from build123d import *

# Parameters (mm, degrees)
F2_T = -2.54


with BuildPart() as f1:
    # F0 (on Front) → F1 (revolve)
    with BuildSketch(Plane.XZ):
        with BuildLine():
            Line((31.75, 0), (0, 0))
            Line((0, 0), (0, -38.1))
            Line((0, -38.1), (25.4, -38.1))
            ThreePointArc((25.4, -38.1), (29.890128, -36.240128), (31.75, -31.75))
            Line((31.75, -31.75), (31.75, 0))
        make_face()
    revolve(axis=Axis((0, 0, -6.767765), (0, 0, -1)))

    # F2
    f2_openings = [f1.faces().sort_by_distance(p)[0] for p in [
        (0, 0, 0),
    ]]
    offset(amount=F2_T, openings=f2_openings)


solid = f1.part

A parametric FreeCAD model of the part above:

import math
import FreeCAD as App
import Part
import Sketcher
Q = App.Units.Quantity


def faces_at(feature, points):
    """Names of the faces that lie closest to the given points."""
    faces = feature.Shape.Faces
    near = lambda p: min(range(len(faces)), key=lambda i: faces[i].distToShape(Part.Vertex(*p))[0])
    return sorted({f"Face{near(p) + 1}" for p in points})

doc = App.newDocument("Part")
body = doc.addObject("PartDesign::Body", "Body")

# Sketch on XZ plane
sketch1 = body.newObject("Sketcher::SketchObject", "Sketch")
sketch1.AttachmentSupport = (doc.getObject("XZ_Plane"), [""])
sketch1.MapMode = "FlatFace"
sketch1.addGeometry(Part.LineSegment(App.Vector(32, 0, 0), App.Vector(0, 0, 0)), False)
sketch1.addGeometry(Part.LineSegment(App.Vector(0, 0, 0), App.Vector(0, -38, 0)), False)
sketch1.addGeometry(Part.LineSegment(App.Vector(0, -38, 0), App.Vector(25, -38, 0)), False)
sketch1.addGeometry(Part.ArcOfCircle(Part.Circle(App.Vector(25, -32, 0), App.Vector(0, 0, 1), 6), math.radians(-90), math.radians(0)), False)
sketch1.addGeometry(Part.LineSegment(App.Vector(32, -32, 0), App.Vector(32, 0, 0)), False)
sketch1.addConstraint(Sketcher.Constraint("Coincident", 0, 2, 1, 1))
sketch1.addConstraint(Sketcher.Constraint("Coincident", 1, 2, 2, 1))
sketch1.addConstraint(Sketcher.Constraint("Tangent", 2, 2, 3, 1))
sketch1.addConstraint(Sketcher.Constraint("Tangent", 3, 2, 4, 1))
sketch1.addConstraint(Sketcher.Constraint("Coincident", 4, 2, 0, 1))
sketch1.addConstraint(Sketcher.Constraint("Horizontal", 0))
sketch1.addConstraint(Sketcher.Constraint("Vertical", 1))
sketch1.addConstraint(Sketcher.Constraint("Horizontal", 2))
sketch1.addConstraint(Sketcher.Constraint("Vertical", 4))
sketch1.addConstraint(Sketcher.Constraint("Coincident", 0, 2, -1, 1))
sketch1.addConstraint(Sketcher.Constraint("Equal", 0, 4))
sketch1.addConstraint(Sketcher.Constraint("DistanceX", 2, 1, 2, 2, Q("1 in")))
sketch1.addConstraint(Sketcher.Constraint("Radius", 3, Q("0.25 in")))
revolution = body.newObject("PartDesign::Revolution", "Revolution")
revolution.Profile = sketch1
revolution.ReferenceAxis = (sketch1, ["V_Axis"])
revolution.Angle = 360
doc.recompute()

thickness = body.newObject("PartDesign::Thickness", "Thickness")
thickness.Base = (revolution, faces_at(revolution, [(0, 0, 0)]))
thickness.Value = Q("0.1 in")
thickness.Reversed = True
thickness.Join = "Arc"

doc.recompute()
